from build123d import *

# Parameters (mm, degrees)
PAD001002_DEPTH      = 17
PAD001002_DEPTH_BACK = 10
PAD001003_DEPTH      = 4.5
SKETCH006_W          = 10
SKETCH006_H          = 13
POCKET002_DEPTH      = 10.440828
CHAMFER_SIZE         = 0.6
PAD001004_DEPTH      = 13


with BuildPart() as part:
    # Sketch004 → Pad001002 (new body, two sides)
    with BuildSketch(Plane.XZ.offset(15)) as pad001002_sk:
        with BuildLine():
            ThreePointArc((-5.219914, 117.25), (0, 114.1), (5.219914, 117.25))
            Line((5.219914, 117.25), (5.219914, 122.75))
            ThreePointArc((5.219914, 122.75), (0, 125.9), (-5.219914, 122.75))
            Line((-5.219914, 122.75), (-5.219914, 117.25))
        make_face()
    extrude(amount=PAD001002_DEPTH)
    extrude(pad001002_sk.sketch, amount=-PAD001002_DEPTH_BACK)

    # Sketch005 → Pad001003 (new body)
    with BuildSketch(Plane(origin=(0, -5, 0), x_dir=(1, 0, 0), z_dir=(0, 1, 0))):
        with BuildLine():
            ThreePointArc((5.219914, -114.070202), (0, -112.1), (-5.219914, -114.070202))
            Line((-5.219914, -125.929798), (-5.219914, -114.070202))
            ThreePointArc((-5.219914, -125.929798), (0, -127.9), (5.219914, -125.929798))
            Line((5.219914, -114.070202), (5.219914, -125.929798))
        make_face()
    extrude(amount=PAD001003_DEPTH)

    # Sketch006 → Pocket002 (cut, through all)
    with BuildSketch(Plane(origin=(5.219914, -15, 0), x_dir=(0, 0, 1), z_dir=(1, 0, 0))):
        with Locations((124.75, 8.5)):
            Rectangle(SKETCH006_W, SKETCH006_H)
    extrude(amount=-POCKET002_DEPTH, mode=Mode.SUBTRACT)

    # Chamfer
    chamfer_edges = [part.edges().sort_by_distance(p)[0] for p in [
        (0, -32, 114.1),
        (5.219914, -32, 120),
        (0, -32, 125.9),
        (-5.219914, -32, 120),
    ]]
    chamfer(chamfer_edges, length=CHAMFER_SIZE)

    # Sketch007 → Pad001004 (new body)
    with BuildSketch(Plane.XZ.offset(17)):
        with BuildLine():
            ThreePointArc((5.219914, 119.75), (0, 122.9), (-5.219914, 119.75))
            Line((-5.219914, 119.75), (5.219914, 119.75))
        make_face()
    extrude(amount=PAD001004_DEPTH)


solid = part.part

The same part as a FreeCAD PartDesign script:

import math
import FreeCAD as App
import Part
import Sketcher

V = App.Vector
Q = App.Units.Quantity


def edges_at(feature, points):
    """Names of the edges that pass closest to the given points."""
    edges = feature.Shape.Edges
    near = lambda p: min(range(len(edges)), key=lambda i: edges[i].distToShape(Part.Vertex(*p))[0])
    return sorted({f"Edge{near(p) + 1}" for p in points})

doc = App.newDocument("Part")
body = doc.addObject("PartDesign::Body", "Body")

# Sketch on XZ plane
sketch1 = doc.addObject("Sketcher::SketchObject", "Sketch")
body.addObject(sketch1)
sketch1.AttachmentSupport = (doc.XZ_Plane, [""])
sketch1.MapMode = "FlatFace"
sketch1.AttachmentOffset = App.Placement(V(0, 0, 15), App.Rotation())
sketch1.addGeometry([
    Part.ArcOfCircle(Part.Circle(V(0, 120, 0), V(0, 0, 1), 6), math.radians(-152), math.radians(-28)),
    Part.LineSegment(V(5, 117, 0), V(5, 123, 0)),
    Part.ArcOfCircle(Part.Circle(V(0, 120, 0), V(0, 0, 1), 6), math.radians(28), math.radians(152)),
    Part.LineSegment(V(-5, 123, 0), V(-5, 117, 0)),
], False)
sketch1.addConstraint([
    Sketcher.Constraint("Coincident", 0, 2, 1, 1),
    Sketcher.Constraint("Coincident", 1, 2, 2, 1),
    Sketcher.Constraint("Coincident", 2, 2, 3, 1),
    Sketcher.Constraint("Coincident", 3, 2, 0, 1),
    Sketcher.Constraint("Vertical", 1),
    Sketcher.Constraint("Vertical", 3),
    Sketcher.Constraint("Coincident", 2, 3, 0, 3),
    Sketcher.Constraint("Equal", 0, 2),
    Sketcher.Constraint("Symmetric", 1, 2, 2, 2, -2),
    Sketcher.Constraint("Radius", 0, Q("5.9 mm")),
    Sketcher.Constraint("DistanceY", 1, 1, 1, 2, Q("5.5 mm")),
    Sketcher.Constraint("DistanceY", -1, 1, 0, 3, Q("120 mm")),
])
pad1 = doc.addObject("PartDesign::Pad", "Pad")
body.addObject(pad1)
pad1.Profile = sketch1
pad1.Type = "TwoLengths"
pad1.Length = 17
pad1.Length2 = 10

# Sketch on XZ plane
sketch2 = doc.addObject("Sketcher::SketchObject", "Sketch001")
body.addObject(sketch2)
sketch2.AttachmentSupport = (doc.XZ_Plane, [""])
sketch2.MapMode = "FlatFace"
sketch2.AttachmentOffset = App.Placement(V(0, 0, 5), App.Rotation())
sketch2.addGeometry([
    Part.ArcOfCircle(Part.Circle(V(0, 120, 0), V(0, 0, 1), 8), math.radians(-131), math.radians(-49)),
    Part.LineSegment(V(-5, 114, 0), V(-5, 126, 0)),
    Part.ArcOfCircle(Part.Circle(V(0, 120, 0), V(0, 0, 1), 8), math.radians(49), math.radians(131)),
    Part.LineSegment(V(5, 126, 0), V(5, 114, 0)),
], False)
sketch2.addConstraint([
    Sketcher.Constraint("Coincident", 0, 1, 1, 1),
    Sketcher.Constraint("Coincident", 1, 2, 2, 2),
    Sketcher.Constraint("Coincident", 2, 1, 3, 1),
    Sketcher.Constraint("Coincident", 3, 2, 0, 2),
    Sketcher.Constraint("Vertical", 1),
    Sketcher.Constraint("Vertical", 3),
    Sketcher.Constraint("Coincident", 2, 3, 0, 3),
    Sketcher.Constraint("Equal", 0, 2),
    Sketcher.Constraint("Symmetric", 1, 2, 2, 1, -2),
    Sketcher.Constraint("Radius", 0, Q("7.900002 mm")),
    Sketcher.Constraint("DistanceY", -1, 1, 0, 3, Q("120.000002 mm")),
    Sketcher.Constraint("DistanceY", -1, 1, 0, 1, Q("114.070202 mm")),
])
pad2 = doc.addObject("PartDesign::Pad", "Pad001")
body.addObject(pad2)
pad2.Profile = sketch2
pad2.Length = 4.5
pad2.Reversed = True

# Sketch on YZ plane
sketch3 = doc.addObject("Sketcher::SketchObject", "Sketch002")
body.addObject(sketch3)
sketch3.AttachmentSupport = (doc.YZ_Plane, [""])
sketch3.MapMode = "FlatFace"
sketch3.AttachmentOffset = App.Placement(V(0, 0, 5.219914), App.Rotation())
sketch3.addGeometry([
    Part.LineSegment(V(-30, 120, 0), V(-17, 120, 0)),
    Part.LineSegment(V(-17, 120, 0), V(-17, 130, 0)),
    Part.LineSegment(V(-17, 130, 0), V(-30, 130, 0)),
    Part.LineSegment(V(-30, 130, 0), V(-30, 120, 0)),
], False)
sketch3.addConstraint([
    Sketcher.Constraint("Coincident", 0, 2, 1, 1),
    Sketcher.Constraint("Coincident", 1, 2, 2, 1),
    Sketcher.Constraint("Coincident", 2, 2, 3, 1),
    Sketcher.Constraint("Coincident", 3, 2, 0, 1),
    Sketcher.Constraint("Horizontal", 0),
    Sketcher.Constraint("Vertical", 1),
    Sketcher.Constraint("Horizontal", 2),
    Sketcher.Constraint("Vertical", 3),
    Sketcher.Constraint("DistanceX", 0, 1, 0, 2, Q("13 mm")),
    Sketcher.Constraint("DistanceY", 1, 1, 1, 2, Q("10 mm")),
    Sketcher.Constraint("DistanceX", 0, 2, -1, 1, Q("17 mm")),
    Sketcher.Constraint("DistanceY", -1, 1, 0, 2, Q("119.75 mm")),
])
pocket1 = doc.addObject("PartDesign::Pocket", "Pocket")
body.addObject(pocket1)
pocket1.Profile = sketch3
pocket1.Type = "ThroughAll"
doc.recompute()

chamfer = doc.addObject("PartDesign::Chamfer", "Chamfer")
body.addObject(chamfer)
chamfer.Base = (pocket1, edges_at(pocket1, [
    (0, -32, 114.1),
    (5.22, -32, 120),
    (0, -32, 125.9),
    (-5.22, -32, 120),
]))
chamfer.Size = 0.6

# Sketch on XZ plane
sketch4 = doc.addObject("Sketcher::SketchObject", "Sketch003")
body.addObject(sketch4)
sketch4.AttachmentSupport = (doc.XZ_Plane, [""])
sketch4.MapMode = "FlatFace"
sketch4.AttachmentOffset = App.Placement(V(0, 0, 17), App.Rotation())
sketch4.addGeometry([
    Part.ArcOfCircle(Part.Circle(V(0, 117, 0), V(0, 0, 1), 6), math.radians(28), math.radians(152)),
    Part.LineSegment(V(-5, 120, 0), V(5, 120, 0)),
], False)
sketch4.addConstraint([
    Sketcher.Constraint("Coincident", 0, 1, 1, 2),
    Sketcher.Constraint("Coincident", 1, 1, 0, 2),
    Sketcher.Constraint("Horizontal", 1),
    Sketcher.Constraint("PointOnObject", 0, 3, -2),
    Sketcher.Constraint("Radius", 0, Q("5.9 mm")),
    Sketcher.Constraint("DistanceY", -1, 1, 0, 3, Q("117 mm")),
    Sketcher.Constraint("DistanceY", -1, 1, 0, 1, Q("119.75 mm")),
])
pad3 = doc.addObject("PartDesign::Pad", "Pad002")
body.addObject(pad3)
pad3.Profile = sketch4
pad3.Length = 13

doc.recompute()
